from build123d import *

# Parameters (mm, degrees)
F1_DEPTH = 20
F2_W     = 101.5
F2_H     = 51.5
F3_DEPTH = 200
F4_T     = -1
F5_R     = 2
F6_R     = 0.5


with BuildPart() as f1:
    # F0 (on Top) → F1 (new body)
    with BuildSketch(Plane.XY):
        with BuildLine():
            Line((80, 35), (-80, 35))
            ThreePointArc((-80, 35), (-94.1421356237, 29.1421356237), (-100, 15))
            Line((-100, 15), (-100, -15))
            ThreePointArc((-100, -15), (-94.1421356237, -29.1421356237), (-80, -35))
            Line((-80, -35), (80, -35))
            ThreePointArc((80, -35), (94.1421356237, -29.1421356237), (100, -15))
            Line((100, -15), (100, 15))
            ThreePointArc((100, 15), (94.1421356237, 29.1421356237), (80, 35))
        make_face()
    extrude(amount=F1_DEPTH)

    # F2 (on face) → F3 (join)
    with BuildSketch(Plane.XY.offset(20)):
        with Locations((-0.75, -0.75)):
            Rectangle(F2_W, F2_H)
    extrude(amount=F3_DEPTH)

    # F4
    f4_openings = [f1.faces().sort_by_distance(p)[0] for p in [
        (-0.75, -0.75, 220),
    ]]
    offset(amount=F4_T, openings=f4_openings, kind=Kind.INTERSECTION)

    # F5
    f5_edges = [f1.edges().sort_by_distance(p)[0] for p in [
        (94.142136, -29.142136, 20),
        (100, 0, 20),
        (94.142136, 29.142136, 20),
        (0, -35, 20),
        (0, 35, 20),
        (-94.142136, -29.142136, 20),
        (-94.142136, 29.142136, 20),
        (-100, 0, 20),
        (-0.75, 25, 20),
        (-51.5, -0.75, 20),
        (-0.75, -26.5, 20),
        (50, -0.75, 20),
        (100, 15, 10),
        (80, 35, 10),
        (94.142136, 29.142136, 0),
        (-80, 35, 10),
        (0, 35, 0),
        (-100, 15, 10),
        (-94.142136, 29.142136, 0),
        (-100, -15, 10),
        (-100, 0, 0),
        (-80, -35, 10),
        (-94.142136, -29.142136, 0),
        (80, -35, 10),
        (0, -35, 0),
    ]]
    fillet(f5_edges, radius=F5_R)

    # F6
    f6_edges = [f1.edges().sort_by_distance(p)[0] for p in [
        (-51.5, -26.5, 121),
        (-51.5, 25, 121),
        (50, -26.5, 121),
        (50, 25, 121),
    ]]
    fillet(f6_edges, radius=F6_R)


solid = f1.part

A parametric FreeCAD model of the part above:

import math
import FreeCAD as App
import Part
import Sketcher
from FreeCAD import Vector


def edges_at(feature, points):
    """Names of the edges that pass closest to the given points."""
    edges = feature.Shape.Edges
    near = lambda p: min(range(len(edges)), key=lambda i: edges[i].distToShape(Part.Vertex(*p))[0])
    return sorted({f"Edge{near(p) + 1}" for p in points})


def faces_at(feature, points):
    """Names of the faces that lie closest to the given points."""
    faces = feature.Shape.Faces
    near = lambda p: min(range(len(faces)), key=lambda i: faces[i].distToShape(Part.Vertex(*p))[0])
    return sorted({f"Face{near(p) + 1}" for p in points})

doc = App.newDocument("Part")
body = doc.addObject("PartDesign::Body", "Body")

# Sketch on XY plane
sketch1 = doc.addObject("Sketcher::SketchObject", "Sketch")
body.addObject(sketch1)
sketch1.AttachmentSupport = (doc.XY_Plane, [""])
sketch1.MapMode = "FlatFace"
sketch1.addGeometry([
    Part.LineSegment(Vector(80, 35, 0), Vector(-80, 35, 0)),  # 0
    Part.ArcOfCircle(Part.Circle(Vector(-80, 15, 0), Vector(0, 0, 1), 20), math.radians(90), math.radians(180)),  # 1
    Part.LineSegment(Vector(-100, 15, 0), Vector(-100, -15, 0)),  # 2
    Part.ArcOfCircle(Part.Circle(Vector(-80, -15, 0), Vector(0, 0, 1), 20), math.radians(180), math.radians(270)),  # 3
    Part.LineSegment(Vector(-80, -35, 0), Vector(80, -35, 0)),  # 4
    Part.ArcOfCircle(Part.Circle(Vector(80, -15, 0), Vector(0, 0, 1), 20), math.radians(-90), math.radians(0)),  # 5
    Part.LineSegment(Vector(100, -15, 0), Vector(100, 15, 0)),  # 6
    Part.ArcOfCircle(Part.Circle(Vector(80, 15, 0), Vector(0, 0, 1), 20), math.radians(0), math.radians(90)),  # 7
], False)
sketch1.addConstraint([
    Sketcher.Constraint("Tangent", 0, 2, 1, 1),
    Sketcher.Constraint("Tangent", 1, 2, 2, 1),
    Sketcher.Constraint("Tangent", 2, 2, 3, 1),
    Sketcher.Constraint("Tangent", 3, 2, 4, 1),
    Sketcher.Constraint("Tangent", 4, 2, 5, 1),
    Sketcher.Constraint("Tangent", 5, 2, 6, 1),
    Sketcher.Constraint("Tangent", 6, 2, 7, 1),
    Sketcher.Constraint("Tangent", 7, 2, 0, 1),
    Sketcher.Constraint("Horizontal", 0),
    Sketcher.Constraint("Vertical", 2),
    Sketcher.Constraint("Horizontal", 4),
    Sketcher.Constraint("Vertical", 6),
    Sketcher.Constraint("Equal", 1, 3),
    Sketcher.Constraint("Equal", 3, 5),
    Sketcher.Constraint("Equal", 5, 7),
    Sketcher.Constraint("Symmetric", 1, 3, 5, 3, -1, 1),
    Sketcher.Constraint("Radius", 1, 20.0),
    Sketcher.Constraint("DistanceX", 0, 2, 0, 1, 160.0),
    Sketcher.Constraint("DistanceY", 2, 2, 2, 1, 30.0),
])
pad1 = doc.addObject("PartDesign::Pad", "Pad")
body.addObject(pad1)
pad1.Profile = sketch1
pad1.Length = 20

# Sketch on XY plane
sketch2 = doc.addObject("Sketcher::SketchObject", "Sketch001")
body.addObject(sketch2)
sketch2.AttachmentSupport = (doc.XY_Plane, [""])
sketch2.MapMode = "FlatFace"
sketch2.AttachmentOffset = App.Placement(Vector(0, 0, 20), App.Rotation())
sketch2.addGeometry([
    Part.LineSegment(Vector(-51.5, 25, 0), Vector(-51.5, -26.5, 0)),
    Part.LineSegment(Vector(-51.5, -26.5, 0), Vector(50, -26.5, 0)),
    Part.LineSegment(Vector(50, -26.5, 0), Vector(50, 25, 0)),
    Part.LineSegment(Vector(50, 25, 0), Vector(-51.5, 25, 0)),
], False)
sketch2.addConstraint([
    Sketcher.Constraint("Coincident", 0, 2, 1, 1),
    Sketcher.Constraint("Coincident", 1, 2, 2, 1),
    Sketcher.Constraint("Coincident", 2, 2, 3, 1),
    Sketcher.Constraint("Coincident", 3, 2, 0, 1),
    Sketcher.Constraint("Vertical", 0),
    Sketcher.Constraint("Horizontal", 1),
    Sketcher.Constraint("Vertical", 2),
    Sketcher.Constraint("Horizontal", 3),
    Sketcher.Constraint("DistanceX", 1, 1, 1, 2, 101.5),
    Sketcher.Constraint("DistanceY", 0, 2, 0, 1, 51.5),
    Sketcher.Constraint("DistanceX", -1, 1, 1, 2, 50.0),
    Sketcher.Constraint("DistanceY", -1, 1, 2, 2, 25.0),
])
pad2 = doc.addObject("PartDesign::Pad", "Pad001")
body.addObject(pad2)
pad2.Profile = sketch2
pad2.Length = 200
doc.recompute()

thickness = doc.addObject("PartDesign::Thickness", "Thickness")
body.addObject(thickness)
thickness.Base = (pad2, faces_at(pad2, [(-0.75, -0.75, 220)]))
thickness.Value = 1
thickness.Reversed = True
thickness.Join = "Intersection"
doc.recompute()

fillet = doc.addObject("PartDesign::Fillet", "Fillet")
body.addObject(fillet)
fillet.Base = (thickness, edges_at(thickness, [
    (94.142, -29.142, 20),
    (100, 0, 20),
    (94.142, 29.142, 20),
    (0, -35, 20),
    (0, 35, 20),
    (-94.142, -29.142, 20),
    (-94.142, 29.142, 20),
    (-100, 0, 20),
    (-0.75, 25, 20),
    (-51.5, -0.75, 20),
    (-0.75, -26.5, 20),
    (50, -0.75, 20),
    (100, 15, 10),
    (80, 35, 10),
    (94.142, 29.142, 0),
    (-80, 35, 10),
    (0, 35, 0),
    (-100, 15, 10),
    (-94.142, 29.142, 0),
    (-100, -15, 10),
    (-100, 0, 0),
    (-80, -35, 10),
    (-94.142, -29.142, 0),
    (80, -35, 10),
    (0, -35, 0),
]))
fillet.Radius = 2
doc.recompute()

fillet2 = doc.addObject("PartDesign::Fillet", "Fillet001")
body.addObject(fillet2)
fillet2.Base = (fillet, edges_at(fillet, [
    (-51.5, -26.5, 121),
    (-51.5, 25, 121),
    (50, -26.5, 121),
    (50, 25, 121),
]))
fillet2.Radius = 0.5

doc.recompute()
